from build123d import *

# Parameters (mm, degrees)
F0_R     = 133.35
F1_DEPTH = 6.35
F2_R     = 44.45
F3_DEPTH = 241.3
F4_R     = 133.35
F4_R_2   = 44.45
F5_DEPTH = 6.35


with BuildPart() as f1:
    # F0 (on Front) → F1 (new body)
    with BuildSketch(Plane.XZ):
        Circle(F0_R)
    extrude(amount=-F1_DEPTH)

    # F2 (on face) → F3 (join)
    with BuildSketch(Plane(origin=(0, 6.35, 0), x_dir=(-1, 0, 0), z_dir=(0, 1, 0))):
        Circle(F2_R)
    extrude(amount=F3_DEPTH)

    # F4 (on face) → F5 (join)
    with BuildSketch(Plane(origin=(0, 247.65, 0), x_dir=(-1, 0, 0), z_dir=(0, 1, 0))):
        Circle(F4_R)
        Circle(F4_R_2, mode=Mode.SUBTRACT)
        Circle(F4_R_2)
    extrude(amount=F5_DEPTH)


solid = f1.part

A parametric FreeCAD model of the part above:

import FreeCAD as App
import Part
import Sketcher
from FreeCAD import Vector
Q = App.Units.Quantity

doc = App.newDocument("Part")
params = doc.addObject("Spreadsheet::Sheet", "Params")
for row, (alias, value) in enumerate([
    ("sketch1_diameter", "10.5 in"),
    ("pad1_length", "0.25 in"),
    ("sketch2_diameter", "3.5 in"),
    ("pad2_length", "9.5 in"),
    ("sketch3_diameter", "10.5 in"),
    ("pad3_length", "0.25 in"),
], start=1):
    params.set(f"A{row}", alias)
    params.set(f"B{row}", "=" + value)
    params.setAlias(f"B{row}", alias)

body = doc.addObject("PartDesign::Body", "Body")

sketch1 = body.newObject("Sketcher::SketchObject", "Sketch")
sketch1.AttachmentSupport = (doc.getObject("XZ_Plane"), [""])
sketch1.MapMode = "FlatFace"
sketch1.addGeometry(Part.Circle(Vector(0, 0, 0), Vector(0, 0, 1), 133), False)
sketch1.addConstraint(Sketcher.Constraint("Coincident", 0, 3, -1, 1))
sketch1.addConstraint(Sketcher.Constraint("Diameter", 0, Q("10.5 in")))
sketch1.setExpression("Constraints[1]", "Params.sketch1_diameter")
pad1 = body.newObject("PartDesign::Pad", "Pad")
pad1.Profile = sketch1
pad1.setExpression("Length", "Params.pad1_length")
pad1.Reversed = True

sketch2 = body.newObject("Sketcher::SketchObject", "Sketch001")
sketch2.AttachmentSupport = (doc.getObject("XZ_Plane"), [""])
sketch2.MapMode = "FlatFace"
sketch2.AttachmentOffset = App.Placement(Vector(0, 0, -0.25 * 25.4), App.Rotation())
sketch2.addGeometry(Part.Circle(Vector(0, 0, 0), Vector(0, 0, 1), 44), False)
sketch2.addConstraint(Sketcher.Constraint("Coincident", 0, 3, -1, 1))
sketch2.addConstraint(Sketcher.Constraint("Diameter", 0, Q("3.5 in")))
sketch2.setExpression("Constraints[1]", "Params.sketch2_diameter")
pad2 = body.newObject("PartDesign::Pad", "Pad001")
pad2.Profile = sketch2
pad2.setExpression("Length", "Params.pad2_length")
pad2.Reversed = True

sketch3 = body.newObject("Sketcher::SketchObject", "Sketch002")
sketch3.AttachmentSupport = (doc.getObject("XZ_Plane"), [""])
sketch3.MapMode = "FlatFace"
sketch3.AttachmentOffset = App.Placement(Vector(0, 0, -9.75 * 25.4), App.Rotation())
sketch3.addGeometry(Part.Circle(Vector(0, 0, 0), Vector(0, 0, 1), 133), False)
sketch3.addConstraint(Sketcher.Constraint("Coincident", 0, 3, -1, 1))
sketch3.addConstraint(Sketcher.Constraint("Diameter", 0, Q("10.5 in")))
sketch3.setExpression("Constraints[1]", "Params.sketch3_diameter")
pad3 = body.newObject("PartDesign::Pad", "Pad002")
pad3.Profile = sketch3
pad3.setExpression("Length", "Params.pad3_length")
pad3.Reversed = True

doc.recompute()
